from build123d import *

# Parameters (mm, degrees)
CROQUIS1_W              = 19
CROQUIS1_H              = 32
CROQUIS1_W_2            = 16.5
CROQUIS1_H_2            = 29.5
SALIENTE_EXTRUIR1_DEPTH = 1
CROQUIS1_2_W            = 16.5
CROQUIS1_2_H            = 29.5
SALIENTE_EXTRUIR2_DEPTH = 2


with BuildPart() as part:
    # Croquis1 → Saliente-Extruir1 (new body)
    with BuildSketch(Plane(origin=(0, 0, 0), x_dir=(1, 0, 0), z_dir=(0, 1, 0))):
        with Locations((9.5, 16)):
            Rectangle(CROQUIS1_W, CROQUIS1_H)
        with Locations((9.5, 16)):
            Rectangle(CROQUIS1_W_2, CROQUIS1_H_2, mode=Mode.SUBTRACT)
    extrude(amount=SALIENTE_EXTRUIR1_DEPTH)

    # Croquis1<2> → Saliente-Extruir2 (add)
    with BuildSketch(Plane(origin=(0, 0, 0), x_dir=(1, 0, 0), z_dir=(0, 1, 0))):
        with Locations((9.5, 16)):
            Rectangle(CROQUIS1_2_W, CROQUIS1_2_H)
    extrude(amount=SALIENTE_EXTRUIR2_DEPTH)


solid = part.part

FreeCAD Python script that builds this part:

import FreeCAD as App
import Part
import Sketcher

V = App.Vector


def add_polygon(sketch, points):
    """Adds a closed chain of lines whose ends are joined by coincident constraints."""
    first, n = sketch.GeometryCount, len(points)
    for a, b in zip(points, points[1:] + points[:1]):
        sketch.addGeometry(Part.LineSegment(App.Vector(*a, 0), App.Vector(*b, 0)), False)
    for i in range(n):
        sketch.addConstraint(Sketcher.Constraint("Coincident", first + i, 2, first + (i + 1) % n, 1))

doc = App.newDocument("Part")
body = doc.addObject("PartDesign::Body", "Body")

# Sketch on XZ plane
sketch1 = body.newObject("Sketcher::SketchObject", "Sketch")
sketch1.AttachmentSupport = (doc.getObject("XZ_Plane"), [""])
sketch1.MapMode = "FlatFace"
add_polygon(sketch1, [(0, -32), (0, 0), (19, 0), (19, -32)])  # lines 0-3
add_polygon(sketch1, [(17.75, -1.25), (1.25, -1.25), (1.25, -30.75), (17.75, -30.75)])  # lines 4-7
sketch1.addConstraint([
    Sketcher.Constraint("Vertical", 0),
    Sketcher.Constraint("Horizontal", 1),
    Sketcher.Constraint("Vertical", 2),
    Sketcher.Constraint("Horizontal", 3),
    Sketcher.Constraint("Horizontal", 4),
    Sketcher.Constraint("Vertical", 5),
    Sketcher.Constraint("Horizontal", 6),
    Sketcher.Constraint("Vertical", 7),
    Sketcher.Constraint("Coincident", 0, 2, -1, 1),
    Sketcher.Constraint("DistanceX", 1, 1, 1, 2, 19.0),
    Sketcher.Constraint("DistanceY", 0, 1, 0, 2, 32.0),
    Sketcher.Constraint("DistanceX", 4, 2, 4, 1, 16.5),
    Sketcher.Constraint("DistanceY", 5, 2, 5, 1, 29.5),
    Sketcher.Constraint("DistanceX", -1, 1, 4, 2, 1.25),
    Sketcher.Constraint("DistanceY", 4, 2, -1, 1, 1.25),
])
pad1 = body.newObject("PartDesign::Pad", "Pad")
pad1.Profile = sketch1
pad1.Length = 1
pad1.Reversed = True

# Sketch on XZ plane
sketch2 = body.newObject("Sketcher::SketchObject", "Sketch001")
sketch2.AttachmentSupport = (doc.getObject("XZ_Plane"), [""])
sketch2.MapMode = "FlatFace"
add_polygon(sketch2, [(1.25, -30.75), (1.25, -1.25), (17.75, -1.25), (17.75, -30.75)])  # lines 0-3
sketch2.addConstraint([
    Sketcher.Constraint("Vertical", 0),
    Sketcher.Constraint("Horizontal", 1),
    Sketcher.Constraint("Vertical", 2),
    Sketcher.Constraint("Horizontal", 3),
    Sketcher.Constraint("DistanceX", 1, 1, 1, 2, 16.5),
    Sketcher.Constraint("DistanceY", 0, 1, 0, 2, 29.5),
    Sketcher.Constraint("DistanceX", -1, 1, 0, 2, 1.25),
    Sketcher.Constraint("DistanceY", 0, 2, -1, 1, 1.25),
])
pad2 = body.newObject("PartDesign::Pad", "Pad001")
pad2.Profile = sketch2
pad2.Length = 2
pad2.Reversed = True

doc.recompute()
